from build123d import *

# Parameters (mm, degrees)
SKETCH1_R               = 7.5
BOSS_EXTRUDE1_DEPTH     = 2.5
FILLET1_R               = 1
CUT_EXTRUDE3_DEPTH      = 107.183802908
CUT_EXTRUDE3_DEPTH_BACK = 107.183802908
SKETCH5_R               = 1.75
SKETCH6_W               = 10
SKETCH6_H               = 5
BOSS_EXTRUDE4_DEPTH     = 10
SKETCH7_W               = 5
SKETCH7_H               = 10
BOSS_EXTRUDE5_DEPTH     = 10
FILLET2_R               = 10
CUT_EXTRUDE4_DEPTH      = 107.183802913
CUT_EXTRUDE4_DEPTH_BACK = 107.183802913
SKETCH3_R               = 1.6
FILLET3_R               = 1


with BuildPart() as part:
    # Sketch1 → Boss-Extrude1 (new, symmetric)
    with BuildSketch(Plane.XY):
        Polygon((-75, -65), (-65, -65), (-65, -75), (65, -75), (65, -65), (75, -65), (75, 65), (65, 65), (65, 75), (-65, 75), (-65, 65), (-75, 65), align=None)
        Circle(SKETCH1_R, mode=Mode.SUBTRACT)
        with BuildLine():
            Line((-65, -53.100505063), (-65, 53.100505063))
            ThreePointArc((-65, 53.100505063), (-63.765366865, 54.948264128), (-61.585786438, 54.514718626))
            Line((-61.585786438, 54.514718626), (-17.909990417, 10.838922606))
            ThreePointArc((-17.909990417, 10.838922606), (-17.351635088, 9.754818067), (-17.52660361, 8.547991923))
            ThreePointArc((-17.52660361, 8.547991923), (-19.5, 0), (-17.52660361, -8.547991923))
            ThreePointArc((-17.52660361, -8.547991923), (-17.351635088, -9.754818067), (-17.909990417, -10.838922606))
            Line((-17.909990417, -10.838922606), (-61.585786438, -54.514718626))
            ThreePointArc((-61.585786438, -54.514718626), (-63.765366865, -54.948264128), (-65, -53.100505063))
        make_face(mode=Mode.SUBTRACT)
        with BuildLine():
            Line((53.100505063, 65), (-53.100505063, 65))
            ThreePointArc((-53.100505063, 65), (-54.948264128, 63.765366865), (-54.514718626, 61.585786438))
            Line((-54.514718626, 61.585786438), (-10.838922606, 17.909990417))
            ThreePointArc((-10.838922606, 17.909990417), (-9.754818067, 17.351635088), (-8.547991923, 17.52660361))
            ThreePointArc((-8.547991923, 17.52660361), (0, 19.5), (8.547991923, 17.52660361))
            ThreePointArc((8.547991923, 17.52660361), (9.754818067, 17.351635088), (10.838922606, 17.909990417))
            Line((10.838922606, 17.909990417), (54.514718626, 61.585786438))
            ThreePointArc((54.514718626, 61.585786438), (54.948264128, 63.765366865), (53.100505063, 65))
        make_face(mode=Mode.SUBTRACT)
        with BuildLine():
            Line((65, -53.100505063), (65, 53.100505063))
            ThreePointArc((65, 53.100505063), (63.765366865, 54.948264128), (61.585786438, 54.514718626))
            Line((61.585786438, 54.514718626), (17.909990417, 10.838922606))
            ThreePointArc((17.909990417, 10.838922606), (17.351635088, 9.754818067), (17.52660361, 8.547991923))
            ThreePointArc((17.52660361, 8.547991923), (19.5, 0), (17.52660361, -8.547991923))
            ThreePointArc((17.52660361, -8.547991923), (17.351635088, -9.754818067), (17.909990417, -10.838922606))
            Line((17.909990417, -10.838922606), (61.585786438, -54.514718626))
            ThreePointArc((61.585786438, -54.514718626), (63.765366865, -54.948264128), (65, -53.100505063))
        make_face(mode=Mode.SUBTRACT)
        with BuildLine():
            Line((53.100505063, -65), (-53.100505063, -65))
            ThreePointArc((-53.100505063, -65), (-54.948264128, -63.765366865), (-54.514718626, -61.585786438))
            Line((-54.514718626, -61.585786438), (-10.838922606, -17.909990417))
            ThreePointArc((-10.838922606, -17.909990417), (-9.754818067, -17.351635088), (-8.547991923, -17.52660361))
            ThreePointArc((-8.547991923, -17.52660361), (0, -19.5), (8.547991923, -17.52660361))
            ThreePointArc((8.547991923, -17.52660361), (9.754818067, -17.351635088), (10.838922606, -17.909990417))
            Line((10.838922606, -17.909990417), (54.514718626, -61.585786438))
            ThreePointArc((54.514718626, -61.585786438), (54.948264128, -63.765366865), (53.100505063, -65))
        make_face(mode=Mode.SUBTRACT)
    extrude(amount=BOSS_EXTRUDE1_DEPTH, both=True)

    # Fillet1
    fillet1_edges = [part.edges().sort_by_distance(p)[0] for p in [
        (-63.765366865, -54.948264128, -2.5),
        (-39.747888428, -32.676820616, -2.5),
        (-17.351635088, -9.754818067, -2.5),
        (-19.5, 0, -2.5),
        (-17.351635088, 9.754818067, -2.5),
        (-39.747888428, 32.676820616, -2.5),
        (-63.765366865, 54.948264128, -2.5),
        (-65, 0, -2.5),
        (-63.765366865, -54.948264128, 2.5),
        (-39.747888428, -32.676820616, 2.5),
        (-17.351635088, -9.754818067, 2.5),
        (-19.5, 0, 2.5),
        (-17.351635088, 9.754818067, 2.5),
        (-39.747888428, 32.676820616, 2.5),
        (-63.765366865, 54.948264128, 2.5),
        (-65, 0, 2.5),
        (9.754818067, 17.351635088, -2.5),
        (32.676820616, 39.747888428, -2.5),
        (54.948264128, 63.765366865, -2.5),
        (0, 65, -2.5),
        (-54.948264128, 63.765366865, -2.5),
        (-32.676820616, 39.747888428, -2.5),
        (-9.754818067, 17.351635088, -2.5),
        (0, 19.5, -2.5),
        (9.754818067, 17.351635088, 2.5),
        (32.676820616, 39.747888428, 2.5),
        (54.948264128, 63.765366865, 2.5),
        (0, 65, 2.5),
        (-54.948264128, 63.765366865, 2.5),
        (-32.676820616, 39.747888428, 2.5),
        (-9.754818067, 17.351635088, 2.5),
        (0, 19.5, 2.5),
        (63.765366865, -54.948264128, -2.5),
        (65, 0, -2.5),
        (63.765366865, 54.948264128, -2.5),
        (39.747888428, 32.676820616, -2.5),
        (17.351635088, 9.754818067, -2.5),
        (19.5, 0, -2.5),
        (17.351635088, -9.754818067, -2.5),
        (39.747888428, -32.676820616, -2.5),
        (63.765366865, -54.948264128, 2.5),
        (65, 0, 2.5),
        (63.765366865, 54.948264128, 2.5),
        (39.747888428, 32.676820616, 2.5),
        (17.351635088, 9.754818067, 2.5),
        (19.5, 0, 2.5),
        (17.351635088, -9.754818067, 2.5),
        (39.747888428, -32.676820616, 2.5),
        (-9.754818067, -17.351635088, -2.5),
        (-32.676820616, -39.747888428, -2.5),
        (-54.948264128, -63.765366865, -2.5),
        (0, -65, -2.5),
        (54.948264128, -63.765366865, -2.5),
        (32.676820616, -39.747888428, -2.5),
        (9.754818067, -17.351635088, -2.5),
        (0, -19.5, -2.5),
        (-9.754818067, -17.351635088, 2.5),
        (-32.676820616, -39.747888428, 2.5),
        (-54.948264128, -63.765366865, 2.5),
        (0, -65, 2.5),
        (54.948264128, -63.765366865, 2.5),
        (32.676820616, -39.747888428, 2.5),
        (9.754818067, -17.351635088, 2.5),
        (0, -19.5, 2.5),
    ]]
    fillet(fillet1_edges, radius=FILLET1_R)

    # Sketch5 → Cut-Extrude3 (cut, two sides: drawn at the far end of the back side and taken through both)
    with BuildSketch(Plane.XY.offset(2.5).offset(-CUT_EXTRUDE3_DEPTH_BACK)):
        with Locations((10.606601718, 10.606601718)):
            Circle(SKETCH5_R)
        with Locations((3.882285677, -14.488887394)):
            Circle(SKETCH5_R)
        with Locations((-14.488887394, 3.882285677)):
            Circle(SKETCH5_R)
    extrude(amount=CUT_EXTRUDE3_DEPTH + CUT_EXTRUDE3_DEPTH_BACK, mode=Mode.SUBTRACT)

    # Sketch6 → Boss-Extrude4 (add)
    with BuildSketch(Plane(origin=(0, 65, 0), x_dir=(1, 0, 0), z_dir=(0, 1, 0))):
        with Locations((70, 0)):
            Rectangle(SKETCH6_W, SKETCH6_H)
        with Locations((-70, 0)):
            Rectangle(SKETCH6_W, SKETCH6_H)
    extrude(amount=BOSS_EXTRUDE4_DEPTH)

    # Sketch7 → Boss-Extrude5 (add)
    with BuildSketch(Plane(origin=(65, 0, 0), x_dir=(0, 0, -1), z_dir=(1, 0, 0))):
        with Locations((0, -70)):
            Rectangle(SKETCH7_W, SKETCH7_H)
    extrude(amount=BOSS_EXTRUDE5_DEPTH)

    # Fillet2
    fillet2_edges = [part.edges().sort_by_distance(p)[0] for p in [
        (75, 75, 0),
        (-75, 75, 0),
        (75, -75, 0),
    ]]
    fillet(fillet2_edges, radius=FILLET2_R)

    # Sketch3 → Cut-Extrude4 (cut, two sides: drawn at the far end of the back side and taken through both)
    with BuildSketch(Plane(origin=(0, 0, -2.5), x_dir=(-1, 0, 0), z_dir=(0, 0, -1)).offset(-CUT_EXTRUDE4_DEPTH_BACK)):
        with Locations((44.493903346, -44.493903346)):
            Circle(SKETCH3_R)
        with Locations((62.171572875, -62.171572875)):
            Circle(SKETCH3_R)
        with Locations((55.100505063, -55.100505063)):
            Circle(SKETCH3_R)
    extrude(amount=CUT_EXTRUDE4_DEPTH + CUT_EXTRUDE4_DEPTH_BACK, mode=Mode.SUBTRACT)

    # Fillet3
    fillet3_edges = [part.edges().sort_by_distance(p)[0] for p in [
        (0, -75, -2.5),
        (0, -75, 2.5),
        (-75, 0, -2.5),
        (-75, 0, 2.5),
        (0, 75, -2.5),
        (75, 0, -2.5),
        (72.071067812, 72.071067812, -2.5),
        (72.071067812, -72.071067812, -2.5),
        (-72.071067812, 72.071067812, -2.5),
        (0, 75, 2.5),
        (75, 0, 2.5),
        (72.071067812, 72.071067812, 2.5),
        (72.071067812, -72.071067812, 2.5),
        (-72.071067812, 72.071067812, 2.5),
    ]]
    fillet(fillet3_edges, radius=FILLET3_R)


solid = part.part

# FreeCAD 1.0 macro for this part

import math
import FreeCAD as App
import Part
import Sketcher

V = App.Vector
Q = App.Units.Quantity


def edges_at(feature, points):
    """Names of the edges that pass closest to the given points."""
    edges = feature.Shape.Edges
    near = lambda p: min(range(len(edges)), key=lambda i: edges[i].distToShape(Part.Vertex(*p))[0])
    return sorted({f"Edge{near(p) + 1}" for p in points})


def add_polygon(sketch, points):
    """Adds a closed chain of lines whose ends are joined by coincident constraints."""
    first, n = sketch.GeometryCount, len(points)
    for a, b in zip(points, points[1:] + points[:1]):
        sketch.addGeometry(Part.LineSegment(App.Vector(*a, 0), App.Vector(*b, 0)), False)
    for i in range(n):
        sketch.addConstraint(Sketcher.Constraint("Coincident", first + i, 2, first + (i + 1) % n, 1))

doc = App.newDocument("Part")
params = doc.addObject("Spreadsheet::Sheet", "Params")
for row, (alias, value) in enumerate([
    ("sketch1_diameter", "15 mm"),
    ("sketch1_radius", "2 mm"),
    ("sketch1_radius2", "19.5 mm"),
    ("sketch1_width", "10 mm"),
    ("sketch1_width2", "130 mm"),
    ("pad1_length", "5 mm"),
    ("fillet_radius", "1 mm"),
    ("sketch2_diameter", "3.5 mm"),
    ("sketch3_width", "10 mm"),
    ("sketch3_height", "5 mm"),
    ("pad2_length", "10 mm"),
    ("sketch4_width", "10 mm"),
    ("sketch4_height", "5 mm"),
    ("pad3_length", "10 mm"),
    ("fillet2_radius", "10 mm"),
    ("sketch5_diameter", "3.2 mm"),
    ("fillet3_radius", "1 mm"),
], start=1):
    params.set(f"A{row}", alias)
    params.set(f"B{row}", "=" + value)
    params.setAlias(f"B{row}", alias)

body = doc.addObject("PartDesign::Body", "Body")

# Sketch on XY plane
sketch1 = doc.addObject("Sketcher::SketchObject", "Sketch")
body.addObject(sketch1)
sketch1.AttachmentSupport = (doc.XY_Plane, [""])
sketch1.MapMode = "FlatFace"
add_polygon(sketch1, [(-75, -65), (-65, -65), (-65, -75), (65, -75), (65, -65), (75, -65), (75, 65), (65, 65), (65, 75), (-65, 75), (-65, 65), (-75, 65)])  # lines 0-11
sketch1.addGeometry(Part.ArcOfCircle(Part.Circle(V(53.100505, -63, 0), V(0, 0, 1), 2), math.radians(-90), math.radians(45)), False)  # 12
sketch1.addGeometry(Part.LineSegment(V(53.100505, -65, 0), V(-53.100505, -65, 0)), False)  # 13
sketch1.addGeometry(Part.ArcOfCircle(Part.Circle(V(-53.100505, -63, 0), V(0, 0, 1), 2), math.radians(135), math.radians(270)), False)  # 14
sketch1.addGeometry(Part.LineSegment(V(-54.514719, -61.585786, 0), V(-10.838923, -17.90999, 0)), False)  # 15
sketch1.addGeometry(Part.ArcOfCircle(Part.Circle(V(-9.424709, -19.324204, 0), V(0, 0, 1), 2), math.radians(64.000802), math.radians(135)), False)  # 16
sketch1.addGeometry(Part.ArcOfCircle(Part.Circle(V(0, 0, 0), V(0, 0, 1), 19.5), math.radians(-115.999198), math.radians(-64.000802)), False)  # 17
sketch1.addGeometry(Part.ArcOfCircle(Part.Circle(V(9.424709, -19.324204, 0), V(0, 0, 1), 2), math.radians(45), math.radians(115.999198)), False)  # 18
sketch1.addGeometry(Part.LineSegment(V(10.838923, -17.90999, 0), V(54.514719, -61.585786, 0)), False)  # 19
sketch1.addGeometry(Part.ArcOfCircle(Part.Circle(V(-63, -53.100505, 0), V(0, 0, 1), 2), math.radians(180), math.radians(315)), False)  # 20
sketch1.addGeometry(Part.LineSegment(V(-65, -53.100505, 0), V(-65, 53.100505, 0)), False)  # 21
sketch1.addGeometry(Part.ArcOfCircle(Part.Circle(V(-63, 53.100505, 0), V(0, 0, 1), 2), math.radians(45), math.radians(180)), False)  # 22
sketch1.addGeometry(Part.LineSegment(V(-61.585786, 54.514719, 0), V(-17.90999, 10.838923, 0)), False)  # 23
sketch1.addGeometry(Part.ArcOfCircle(Part.Circle(V(-19.324204, 9.424709, 0), V(0, 0, 1), 2), math.radians(-25.999198), math.radians(45)), False)  # 24
sketch1.addGeometry(Part.ArcOfCircle(Part.Circle(V(0, 0, 0), V(0, 0, 1), 19.5), math.radians(154.000802), math.radians(205.999198)), False)  # 25
sketch1.addGeometry(Part.ArcOfCircle(Part.Circle(V(-19.324204, -9.424709, 0), V(0, 0, 1), 2), math.radians(-45), math.radians(25.999198)), False)  # 26
sketch1.addGeometry(Part.LineSegment(V(-17.90999, -10.838923, 0), V(-61.585786, -54.514719, 0)), False)  # 27
sketch1.addGeometry(Part.Circle(V(0, 0, 0), V(0, 0, 1), 7.5), False)  # 28
sketch1.addGeometry(Part.LineSegment(V(65, 53.100505, 0), V(65, -53.100505, 0)), False)  # 29
sketch1.addGeometry(Part.ArcOfCircle(Part.Circle(V(63, -53.100505, 0), V(0, 0, 1), 2), math.radians(-135), math.radians(0)), False)  # 30
sketch1.addGeometry(Part.LineSegment(V(61.585786, -54.514719, 0), V(17.90999, -10.838923, 0)), False)  # 31
sketch1.addGeometry(Part.ArcOfCircle(Part.Circle(V(19.324204, -9.424709, 0), V(0, 0, 1), 2), math.radians(154.000802), math.radians(225)), False)  # 32
sketch1.addGeometry(Part.ArcOfCircle(Part.Circle(V(0, 0, 0), V(0, 0, 1), 19.5), math.radians(-25.999198), math.radians(25.999198)), False)  # 33
sketch1.addGeometry(Part.ArcOfCircle(Part.Circle(V(19.324204, 9.424709, 0), V(0, 0, 1), 2), math.radians(135), math.radians(205.999198)), False)  # 34
sketch1.addGeometry(Part.LineSegment(V(17.90999, 10.838923, 0), V(61.585786, 54.514719, 0)), False)  # 35
sketch1.addGeometry(Part.ArcOfCircle(Part.Circle(V(63, 53.100505, 0), V(0, 0, 1), 2), math.radians(0), math.radians(135)), False)  # 36
sketch1.addGeometry(Part.LineSegment(V(-53.100505, 65, 0), V(53.100505, 65, 0)), False)  # 37
sketch1.addGeometry(Part.ArcOfCircle(Part.Circle(V(53.100505, 63, 0), V(0, 0, 1), 2), math.radians(-45), math.radians(90)), False)  # 38
sketch1.addGeometry(Part.LineSegment(V(54.514719, 61.585786, 0), V(10.838923, 17.90999, 0)), False)  # 39
sketch1.addGeometry(Part.ArcOfCircle(Part.Circle(V(9.424709, 19.324204, 0), V(0, 0, 1), 2), math.radians(-115.999198), math.radians(-45)), False)  # 40
sketch1.addGeometry(Part.ArcOfCircle(Part.Circle(V(0, 0, 0), V(0, 0, 1), 19.5), math.radians(64.000802), math.radians(115.999198)), False)  # 41
sketch1.addGeometry(Part.ArcOfCircle(Part.Circle(V(-9.424709, 19.324204, 0), V(0, 0, 1), 2), math.radians(-135), math.radians(-64.000802)), False)  # 42
sketch1.addGeometry(Part.LineSegment(V(-10.838923, 17.90999, 0), V(-54.514719, 61.585786, 0)), False)  # 43
sketch1.addGeometry(Part.ArcOfCircle(Part.Circle(V(-53.100505, 63, 0), V(0, 0, 1), 2), math.radians(90), math.radians(225)), False)  # 44
sketch1.addConstraint([
    Sketcher.Constraint("Tangent", 12, 1, 13, 1),
    Sketcher.Constraint("Tangent", 13, 2, 14, 2),
    Sketcher.Constraint("Tangent", 14, 1, 15, 1),
    Sketcher.Constraint("Tangent", 15, 2, 16, 2),
    Sketcher.Constraint("Tangent", 16, 1, 17, 1),
    Sketcher.Constraint("Tangent", 17, 2, 18, 2),
    Sketcher.Constraint("Tangent", 18, 1, 19, 1),
    Sketcher.Constraint("Tangent", 19, 2, 12, 2),
    Sketcher.Constraint("Tangent", 20, 1, 21, 1),
    Sketcher.Constraint("Tangent", 21, 2, 22, 2),
    Sketcher.Constraint("Tangent", 22, 1, 23, 1),
    Sketcher.Constraint("Tangent", 23, 2, 24, 2),
    Sketcher.Constraint("Tangent", 24, 1, 25, 1),
    Sketcher.Constraint("Tangent", 25, 2, 26, 2),
    Sketcher.Constraint("Tangent", 26, 1, 27, 1),
    Sketcher.Constraint("Tangent", 27, 2, 20, 2),
    Sketcher.Constraint("Tangent", 29, 2, 30, 2),
    Sketcher.Constraint("Tangent", 30, 1, 31, 1),
    Sketcher.Constraint("Tangent", 31, 2, 32, 2),
    Sketcher.Constraint("Tangent", 32, 1, 33, 1),
    Sketcher.Constraint("Tangent", 33, 2, 34, 2),
    Sketcher.Constraint("Tangent", 34, 1, 35, 1),
    Sketcher.Constraint("Tangent", 35, 2, 36, 2),
    Sketcher.Constraint("Tangent", 36, 1, 29, 1),
    Sketcher.Constraint("Tangent", 37, 2, 38, 2),
    Sketcher.Constraint("Tangent", 38, 1, 39, 1),
    Sketcher.Constraint("Tangent", 39, 2, 40, 2),
    Sketcher.Constraint("Tangent", 40, 1, 41, 1),
    Sketcher.Constraint("Tangent", 41, 2, 42, 2),
    Sketcher.Constraint("Tangent", 42, 1, 43, 1),
    Sketcher.Constraint("Tangent", 43, 2, 44, 2),
    Sketcher.Constraint("Tangent", 44, 1, 37, 1),
    Sketcher.Constraint("Horizontal", 0),
    Sketcher.Constraint("Vertical", 1),
    Sketcher.Constraint("Horizontal", 2),
    Sketcher.Constraint("Vertical", 3),
    Sketcher.Constraint("Horizontal", 4),
    Sketcher.Constraint("Vertical", 5),
    Sketcher.Constraint("Horizontal", 6),
    Sketcher.Constraint("Vertical", 7),
    Sketcher.Constraint("Horizontal", 8),
    Sketcher.Constraint("Vertical", 9),
    Sketcher.Constraint("Horizontal", 10),
    Sketcher.Constraint("Vertical", 11),
    Sketcher.Constraint("Horizontal", 13),
    Sketcher.Constraint("Vertical", 21),
    Sketcher.Constraint("Vertical", 29),
    Sketcher.Constraint("Horizontal", 37),
    Sketcher.Constraint("Coincident", 17, 3, -1, 1),
    Sketcher.Constraint("Coincident", 25, 3, -1, 1),
    Sketcher.Constraint("Coincident", 28, 3, -1, 1),
    Sketcher.Constraint("Coincident", 33, 3, -1, 1),
    Sketcher.Constraint("Coincident", 41, 3, -1, 1),
    Sketcher.Constraint("Equal", 12, 14),
    Sketcher.Constraint("Equal", 14, 16),
    Sketcher.Constraint("Equal", 16, 18),
    Sketcher.Constraint("Equal", 18, 20),
    Sketcher.Constraint("Equal", 20, 22),
    Sketcher.Constraint("Equal", 22, 24),
    Sketcher.Constraint("Equal", 17, 25),
    Sketcher.Constraint("Equal", 24, 26),
    Sketcher.Constraint("Equal", 26, 30),
    Sketcher.Constraint("Equal", 30, 32),
    Sketcher.Constraint("Equal", 25, 33),
    Sketcher.Constraint("Equal", 32, 34),
    Sketcher.Constraint("Equal", 34, 36),
    Sketcher.Constraint("Equal", 36, 38),
    Sketcher.Constraint("Equal", 38, 40),
    Sketcher.Constraint("Equal", 33, 41),
    Sketcher.Constraint("Equal", 40, 42),
    Sketcher.Constraint("Equal", 42, 44),
    Sketcher.Constraint("Symmetric", 22, 3, 30, 3, -1, 1),
    Sketcher.Constraint("Symmetric", 14, 3, 38, 3, -1, 1),
    Sketcher.Constraint("Symmetric", 0, 2, 6, 2, -1, 1),
    Sketcher.Constraint("Symmetric", 2, 2, 8, 2, -1, 1),
    Sketcher.Constraint("Symmetric", 4, 2, 10, 2, -1, 1),
    Sketcher.Constraint("Symmetric", 26, 1, 34, 1, -1, 1),
    Sketcher.Constraint("Symmetric", 18, 1, 42, 1, -1, 1),
    Sketcher.Constraint("Symmetric", 0, 2, 3, 2, -2),
    Sketcher.Constraint("Symmetric", 15, 2, 18, 1, -2),
    Sketcher.Constraint("Symmetric", 27, 2, 30, 1, -2),
    Sketcher.Constraint("Perpendicular", 15, 19),
    Sketcher.Constraint("Parallel", 19, 23),
    Sketcher.Constraint("Perpendicular", 23, 27),
    Sketcher.Constraint("Parallel", 35, 39),
    Sketcher.Constraint("Horizontal", 11, 2, 12, 1),
    Sketcher.Constraint("Vertical", 9, 2, 20, 1),
    Sketcher.Constraint("Equal", 10, 1),
    Sketcher.Constraint("Equal", 8, 5),
    Sketcher.Constraint("Equal", 37, 21),
    Sketcher.Constraint("Diameter", 28, Q("15 mm")),
    Sketcher.Constraint("Radius", 12, Q("2 mm")),
    Sketcher.Constraint("Radius", 17, Q("19.5 mm")),
    Sketcher.Constraint("DistanceX", 0, 1, 0, 2, Q("10 mm")),
    Sketcher.Constraint("DistanceX", 2, 1, 2, 2, Q("130 mm")),
    Sketcher.Constraint("DistanceX", 13, 2, 13, 1, Q("106.20101 mm")),
])
sketch1.setExpression("Constraints[102]", "Params.sketch1_diameter")
sketch1.setExpression("Constraints[103]", "Params.sketch1_radius")
sketch1.setExpression("Constraints[104]", "Params.sketch1_radius2")
sketch1.setExpression("Constraints[105]", "Params.sketch1_width")
sketch1.setExpression("Constraints[106]", "Params.sketch1_width2")
pad1 = doc.addObject("PartDesign::Pad", "Pad")
body.addObject(pad1)
pad1.Profile = sketch1
pad1.setExpression("Length", "Params.pad1_length")
pad1.Midplane = True
doc.recompute()

fillet = doc.addObject("PartDesign::Fillet", "Fillet")
body.addObject(fillet)
fillet.Base = (pad1, edges_at(pad1, [
    (-63.765, -54.948, -2.5),
    (-39.748, -32.677, -2.5),
    (-17.352, -9.755, -2.5),
    (-19.5, 0, -2.5),
    (-17.352, 9.755, -2.5),
    (-39.748, 32.677, -2.5),
    (-63.765, 54.948, -2.5),
    (-65, 0, -2.5),
    (-63.765, -54.948, 2.5),
    (-39.748, -32.677, 2.5),
    (-17.352, -9.755, 2.5),
    (-19.5, 0, 2.5),
    (-17.352, 9.755, 2.5),
    (-39.748, 32.677, 2.5),
    (-63.765, 54.948, 2.5),
    (-65, 0, 2.5),
    (9.755, 17.352, -2.5),
    (32.677, 39.748, -2.5),
    (54.948, 63.765, -2.5),
    (0, 65, -2.5),
    (-54.948, 63.765, -2.5),
    (-32.677, 39.748, -2.5),
    (-9.755, 17.352, -2.5),
    (0, 19.5, -2.5),
    (9.755, 17.352, 2.5),
    (32.677, 39.748, 2.5),
    (54.948, 63.765, 2.5),
    (0, 65, 2.5),
    (-54.948, 63.765, 2.5),
    (-32.677, 39.748, 2.5),
    (-9.755, 17.352, 2.5),
    (0, 19.5, 2.5),
    (63.765, -54.948, -2.5),
    (65, 0, -2.5),
    (63.765, 54.948, -2.5),
    (39.748, 32.677, -2.5),
    (17.352, 9.755, -2.5),
    (19.5, 0, -2.5),
    (17.352, -9.755, -2.5),
    (39.748, -32.677, -2.5),
    (63.765, -54.948, 2.5),
    (65, 0, 2.5),
    (63.765, 54.948, 2.5),
    (39.748, 32.677, 2.5),
    (17.352, 9.755, 2.5),
    (19.5, 0, 2.5),
    (17.352, -9.755, 2.5),
    (39.748, -32.677, 2.5),
    (-9.755, -17.352, -2.5),
    (-32.677, -39.748, -2.5),
    (-54.948, -63.765, -2.5),
    (0, -65, -2.5),
    (54.948, -63.765, -2.5),
    (32.677, -39.748, -2.5),
    (9.755, -17.352, -2.5),
    (0, -19.5, -2.5),
    (-9.755, -17.352, 2.5),
    (-32.677, -39.748, 2.5),
    (-54.948, -63.765, 2.5),
    (0, -65, 2.5),
    (54.948, -63.765, 2.5),
    (32.677, -39.748, 2.5),
    (9.755, -17.352, 2.5),
    (0, -19.5, 2.5),
]))
fillet.setExpression("Radius", "Params.fillet_radius")

# Sketch on XY plane
sketch2 = doc.addObject("Sketcher::SketchObject", "Sketch001")
body.addObject(sketch2)
sketch2.AttachmentSupport = (doc.XY_Plane, [""])
sketch2.MapMode = "FlatFace"
sketch2.AttachmentOffset = App.Placement(V(0, 0, 2.5), App.Rotation())
sketch2.addGeometry([
    Part.Circle(V(10.606602, 10.606602, 0), V(0, 0, 1), 1.75),
    Part.Circle(V(3.882286, -14.488887, 0), V(0, 0, 1), 1.75),
    Part.Circle(V(-14.488887, 3.882286, 0), V(0, 0, 1), 1.75),
], False)
sketch2.addConstraint([
    Sketcher.Constraint("Equal", 0, 1),
    Sketcher.Constraint("Equal", 1, 2),
    Sketcher.Constraint("Diameter", 0, Q("3.5 mm")),
    Sketcher.Constraint("DistanceX", -1, 1, 0, 3, Q("10.606602 mm")),
    Sketcher.Constraint("DistanceY", -1, 1, 0, 3, Q("10.606602 mm")),
    Sketcher.Constraint("DistanceY", 1, 3, 0, 3, Q("25.095489 mm")),
    Sketcher.Constraint("DistanceX", 2, 3, 0, 3, Q("25.095489 mm")),
    Sketcher.Constraint("DistanceX", -1, 1, 1, 3, Q("3.882286 mm")),
    Sketcher.Constraint("DistanceY", -1, 1, 2, 3, Q("3.882286 mm")),
])
sketch2.setExpression("Constraints[2]", "Params.sketch2_diameter")
pocket1 = doc.addObject("PartDesign::Pocket", "Pocket")
body.addObject(pocket1)
pocket1.Profile = sketch2
pocket1.Type = "ThroughAll"
pocket1.Midplane = True

# Sketch on XZ plane
sketch3 = doc.addObject("Sketcher::SketchObject", "Sketch002")
body.addObject(sketch3)
sketch3.AttachmentSupport = (doc.XZ_Plane, [""])
sketch3.MapMode = "FlatFace"
sketch3.AttachmentOffset = App.Placement(V(0, 0, -65), App.Rotation())
add_polygon(sketch3, [(65, -2.5), (65, 2.5), (75, 2.5), (75, -2.5)])  # lines 0-3
add_polygon(sketch3, [(-75, -2.5), (-75, 2.5), (-65, 2.5), (-65, -2.5)])  # lines 4-7
sketch3.addConstraint([
    Sketcher.Constraint("Vertical", 0),
    Sketcher.Constraint("Horizontal", 1),
    Sketcher.Constraint("Vertical", 2),
    Sketcher.Constraint("Horizontal", 3),
    Sketcher.Constraint("Vertical", 4),
    Sketcher.Constraint("Horizontal", 5),
    Sketcher.Constraint("Vertical", 6),
    Sketcher.Constraint("Horizontal", 7),
    Sketcher.Constraint("Symmetric", 2, 2, 4, 2, -1, 1),
    Sketcher.Constraint("Symmetric", 0, 2, 6, 2, -1, 1),
    Sketcher.Constraint("Horizontal", 1, 2, 4, 2),
    Sketcher.Constraint("DistanceX", 1, 1, 1, 2, Q("10 mm")),
    Sketcher.Constraint("DistanceY", 0, 1, 0, 2, Q("5 mm")),
    Sketcher.Constraint("DistanceX", -1, 1, 0, 2, Q("65 mm")),
])
sketch3.setExpression("Constraints[19]", "Params.sketch3_width")
sketch3.setExpression("Constraints[20]", "Params.sketch3_height")
pad2 = doc.addObject("PartDesign::Pad", "Pad001")
body.addObject(pad2)
pad2.Profile = sketch3
pad2.setExpression("Length", "Params.pad2_length")
pad2.Reversed = True

# Sketch on YZ plane
sketch4 = doc.addObject("Sketcher::SketchObject", "Sketch003")
body.addObject(sketch4)
sketch4.AttachmentSupport = (doc.YZ_Plane, [""])
sketch4.MapMode = "FlatFace"
sketch4.AttachmentOffset = App.Placement(V(0, 0, 65), App.Rotation())
add_polygon(sketch4, [(-65, 2.5), (-75, 2.5), (-75, -2.5), (-65, -2.5)])  # lines 0-3
sketch4.addConstraint([
    Sketcher.Constraint("Horizontal", 0),
    Sketcher.Constraint("Vertical", 1),
    Sketcher.Constraint("Horizontal", 2),
    Sketcher.Constraint("Vertical", 3),
    Sketcher.Constraint("DistanceX", 0, 2, 0, 1, Q("10 mm")),
    Sketcher.Constraint("DistanceY", 1, 2, 1, 1, Q("5 mm")),
    Sketcher.Constraint("DistanceX", 0, 2, -1, 1, Q("75 mm")),
    Sketcher.Constraint("DistanceY", -1, 1, 0, 2, Q("2.5 mm")),
])
sketch4.setExpression("Constraints[8]", "Params.sketch4_width")
sketch4.setExpression("Constraints[9]", "Params.sketch4_height")
pad3 = doc.addObject("PartDesign::Pad", "Pad002")
body.addObject(pad3)
pad3.Profile = sketch4
pad3.setExpression("Length", "Params.pad3_length")
doc.recompute()

fillet2 = doc.addObject("PartDesign::Fillet", "Fillet001")
body.addObject(fillet2)
fillet2.Base = (pad3, edges_at(pad3, [(75, 75, 0), (-75, 75, 0), (75, -75, 0)]))
fillet2.setExpression("Radius", "Params.fillet2_radius")

# Sketch on XY plane
sketch5 = doc.addObject("Sketcher::SketchObject", "Sketch004")
body.addObject(sketch5)
sketch5.AttachmentSupport = (doc.XY_Plane, [""])
sketch5.MapMode = "FlatFace"
sketch5.AttachmentOffset = App.Placement(V(0, 0, -2.5), App.Rotation())
sketch5.addGeometry([
    Part.Circle(V(-44.493903, -44.493903, 0), V(0, 0, 1), 1.6),
    Part.Circle(V(-62.171573, -62.171573, 0), V(0, 0, 1), 1.6),
    Part.Circle(V(-55.100505, -55.100505, 0), V(0, 0, 1), 1.6),
], False)
sketch5.addConstraint([
    Sketcher.Constraint("Equal", 0, 1),
    Sketcher.Constraint("Equal", 1, 2),
    Sketcher.Constraint("Diameter", 0, Q("3.2 mm")),
    Sketcher.Constraint("DistanceX", 2, 3, 0, 3, Q("10.606602 mm")),
    Sketcher.Constraint("DistanceY", 2, 3, 0, 3, Q("10.606602 mm")),
    Sketcher.Constraint("DistanceX", 1, 3, 0, 3, Q("17.67767 mm")),
    Sketcher.Constraint("DistanceY", 1, 3, 0, 3, Q("17.67767 mm")),
    Sketcher.Constraint("DistanceX", 0, 3, -1, 1, Q("44.493903 mm")),
    Sketcher.Constraint("DistanceY", 0, 3, -1, 1, Q("44.493903 mm")),
])
sketch5.setExpression("Constraints[2]", "Params.sketch5_diameter")
pocket2 = doc.addObject("PartDesign::Pocket", "Pocket001")
body.addObject(pocket2)
pocket2.Profile = sketch5
pocket2.Type = "ThroughAll"
pocket2.Midplane = True
doc.recompute()

fillet3 = doc.addObject("PartDesign::Fillet", "Fillet002")
body.addObject(fillet3)
fillet3.Base = (pocket2, edges_at(pocket2, [
    (0, -75, -2.5),
    (0, -75, 2.5),
    (-75, 0, -2.5),
    (-75, 0, 2.5),
    (0, 75, -2.5),
    (75, 0, -2.5),
    (72.071, 72.071, -2.5),
    (72.071, -72.071, -2.5),
    (-72.071, 72.071, -2.5),
    (0, 75, 2.5),
    (75, 0, 2.5),
    (72.071, 72.071, 2.5),
    (72.071, -72.071, 2.5),
    (-72.071, 72.071, 2.5),
]))
fillet3.setExpression("Radius", "Params.fillet3_radius")

doc.recompute()
